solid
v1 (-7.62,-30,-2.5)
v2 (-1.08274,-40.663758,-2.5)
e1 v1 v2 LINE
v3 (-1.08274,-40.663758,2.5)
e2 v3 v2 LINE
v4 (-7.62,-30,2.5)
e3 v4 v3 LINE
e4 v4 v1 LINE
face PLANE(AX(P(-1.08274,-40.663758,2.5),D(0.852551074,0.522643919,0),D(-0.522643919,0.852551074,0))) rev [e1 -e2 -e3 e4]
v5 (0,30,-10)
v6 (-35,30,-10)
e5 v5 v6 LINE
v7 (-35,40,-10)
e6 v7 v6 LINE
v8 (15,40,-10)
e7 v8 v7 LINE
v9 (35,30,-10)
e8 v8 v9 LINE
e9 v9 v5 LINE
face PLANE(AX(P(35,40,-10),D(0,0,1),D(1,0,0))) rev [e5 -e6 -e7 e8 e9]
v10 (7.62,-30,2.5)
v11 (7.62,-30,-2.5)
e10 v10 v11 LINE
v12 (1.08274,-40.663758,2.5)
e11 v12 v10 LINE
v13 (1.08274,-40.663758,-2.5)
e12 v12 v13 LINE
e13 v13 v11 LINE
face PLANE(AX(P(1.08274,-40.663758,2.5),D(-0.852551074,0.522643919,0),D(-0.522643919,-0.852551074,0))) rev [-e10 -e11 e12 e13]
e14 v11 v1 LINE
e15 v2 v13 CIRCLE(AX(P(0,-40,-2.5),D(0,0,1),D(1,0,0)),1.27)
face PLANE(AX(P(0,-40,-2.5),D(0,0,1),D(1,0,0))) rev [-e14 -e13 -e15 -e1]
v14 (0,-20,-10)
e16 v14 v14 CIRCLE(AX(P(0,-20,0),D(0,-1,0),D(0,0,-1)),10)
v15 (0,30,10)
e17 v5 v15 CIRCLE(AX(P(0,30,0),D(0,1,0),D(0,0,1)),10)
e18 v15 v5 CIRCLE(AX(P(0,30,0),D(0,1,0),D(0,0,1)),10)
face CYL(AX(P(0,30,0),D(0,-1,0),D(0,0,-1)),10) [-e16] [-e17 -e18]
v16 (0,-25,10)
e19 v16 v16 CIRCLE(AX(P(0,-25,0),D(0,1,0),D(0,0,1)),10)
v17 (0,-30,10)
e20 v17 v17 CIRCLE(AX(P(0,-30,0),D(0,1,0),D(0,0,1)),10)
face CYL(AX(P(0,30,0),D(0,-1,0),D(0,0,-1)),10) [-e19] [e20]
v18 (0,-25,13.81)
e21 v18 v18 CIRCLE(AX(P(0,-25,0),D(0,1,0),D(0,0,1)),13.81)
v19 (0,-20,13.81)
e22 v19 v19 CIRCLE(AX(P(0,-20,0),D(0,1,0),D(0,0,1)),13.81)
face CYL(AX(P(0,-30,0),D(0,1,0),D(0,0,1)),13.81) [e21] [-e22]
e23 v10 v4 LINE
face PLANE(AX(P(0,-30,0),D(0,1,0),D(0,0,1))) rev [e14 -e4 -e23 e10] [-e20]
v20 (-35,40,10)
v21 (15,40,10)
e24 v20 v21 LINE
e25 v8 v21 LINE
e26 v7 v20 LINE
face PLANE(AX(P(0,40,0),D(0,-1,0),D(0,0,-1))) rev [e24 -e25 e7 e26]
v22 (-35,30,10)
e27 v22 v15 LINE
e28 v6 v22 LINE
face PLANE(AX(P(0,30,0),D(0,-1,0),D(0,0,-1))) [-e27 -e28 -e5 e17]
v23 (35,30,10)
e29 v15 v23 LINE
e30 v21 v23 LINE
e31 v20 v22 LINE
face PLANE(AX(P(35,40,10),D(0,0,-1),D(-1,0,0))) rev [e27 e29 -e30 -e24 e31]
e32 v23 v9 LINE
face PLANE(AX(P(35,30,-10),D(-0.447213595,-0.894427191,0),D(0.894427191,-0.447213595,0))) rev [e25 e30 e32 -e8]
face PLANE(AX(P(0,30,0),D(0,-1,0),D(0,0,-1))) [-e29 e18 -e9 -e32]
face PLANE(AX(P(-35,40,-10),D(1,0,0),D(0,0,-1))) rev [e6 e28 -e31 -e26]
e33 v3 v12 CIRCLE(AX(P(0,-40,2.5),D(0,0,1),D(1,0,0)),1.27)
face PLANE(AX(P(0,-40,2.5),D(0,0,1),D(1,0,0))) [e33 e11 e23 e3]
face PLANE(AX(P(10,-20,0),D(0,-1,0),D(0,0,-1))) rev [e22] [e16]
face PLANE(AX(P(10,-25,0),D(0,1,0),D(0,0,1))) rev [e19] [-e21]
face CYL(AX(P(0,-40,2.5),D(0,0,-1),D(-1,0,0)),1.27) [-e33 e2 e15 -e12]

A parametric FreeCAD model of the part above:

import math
import FreeCAD as App
import Part
import Sketcher
Q = App.Units.Quantity


def add_polygon(sketch, points):
    """Adds a closed chain of lines whose ends are joined by coincident constraints."""
    first, n = sketch.GeometryCount, len(points)
    for a, b in zip(points, points[1:] + points[:1]):
        sketch.addGeometry(Part.LineSegment(App.Vector(*a, 0), App.Vector(*b, 0)), False)
    for i in range(n):
        sketch.addConstraint(Sketcher.Constraint("Coincident", first + i, 2, first + (i + 1) % n, 1))

doc = App.newDocument("Part")
body = doc.addObject("PartDesign::Body", "Body")

sketch1 = doc.addObject("Sketcher::SketchObject", "Sketch")
body.addObject(sketch1)
sketch1.AttachmentSupport = (doc.XZ_Plane, [""])
sketch1.MapMode = "FlatFace"
sketch1.addGeometry(Part.Circle(App.Vector(0, 0, 0), App.Vector(0, 0, 1), 10), False)
sketch1.addConstraint([
    Sketcher.Constraint("Coincident", 0, 3, -1, 1),
    Sketcher.Constraint("Diameter", 0, Q("20 mm")),
])
pad1 = doc.addObject("PartDesign::Pad", "Pad")
body.addObject(pad1)
pad1.Profile = sketch1
pad1.Length = 60
pad1.Midplane = True

sketch2 = doc.addObject("Sketcher::SketchObject", "Sketch001")
body.addObject(sketch2)
sketch2.AttachmentSupport = (doc.XY_Plane, [""])
sketch2.MapMode = "FlatFace"
sketch2.addGeometry([
    Part.LineSegment(App.Vector(-7.6, -30, 0), App.Vector(-1.1, -40.7, 0)),
    Part.ArcOfCircle(Part.Circle(App.Vector(0, -40, 0), App.Vector(0, 0, 1), 1.3), math.radians(-148), math.radians(-32)),
    Part.LineSegment(App.Vector(1.1, -40.7, 0), App.Vector(7.6, -30, 0)),
    Part.LineSegment(App.Vector(7.6, -30, 0), App.Vector(-7.6, -30, 0)),
], False)
sketch2.addConstraint([
    Sketcher.Constraint("Tangent", 0, 2, 1, 1),
    Sketcher.Constraint("Tangent", 1, 2, 2, 1),
    Sketcher.Constraint("Coincident", 2, 2, 3, 1),
    Sketcher.Constraint("Coincident", 3, 2, 0, 1),
    Sketcher.Constraint("Horizontal", 3),
    Sketcher.Constraint("Symmetric", 0, 2, 1, 2, -2),
    Sketcher.Constraint("Radius", 1, Q("1.27 mm")),
    Sketcher.Constraint("DistanceY", 1, 3, -1, 1, Q("40 mm")),
    Sketcher.Constraint("DistanceY", 2, 2, -1, 1, Q("30 mm")),
    Sketcher.Constraint("DistanceX", 3, 2, 3, 1, Q("15.24 mm")),
])
pad2 = doc.addObject("PartDesign::Pad", "Pad001")
body.addObject(pad2)
pad2.Profile = sketch2
pad2.Length = 5
pad2.Midplane = True

sketch3 = doc.addObject("Sketcher::SketchObject", "Sketch002")
body.addObject(sketch3)
sketch3.AttachmentSupport = (doc.XY_Plane, [""])
sketch3.MapMode = "FlatFace"
add_polygon(sketch3, [(10, -20), (10, -25), (13.8, -25), (13.8, -20)])
sketch3.addConstraint([
    Sketcher.Constraint("Vertical", 0),
    Sketcher.Constraint("Horizontal", 1),
    Sketcher.Constraint("Vertical", 2),
    Sketcher.Constraint("Horizontal", 3),
    Sketcher.Constraint("DistanceY", 0, 2, 0, 1, Q("5 mm")),
    Sketcher.Constraint("DistanceX", -1, 1, 0, 2, Q("10 mm")),
    Sketcher.Constraint("DistanceY", 0, 2, -1, 1, Q("25 mm")),
    Sketcher.Constraint("DistanceX", 1, 1, 1, 2, Q("3.81 mm")),
])
revolution = doc.addObject("PartDesign::Revolution", "Revolution")
body.addObject(revolution)
revolution.Profile = sketch3
revolution.ReferenceAxis = (sketch3, ["V_Axis"])
revolution.Angle = 360

sketch4 = doc.addObject("Sketcher::SketchObject", "Sketch003")
body.addObject(sketch4)
sketch4.AttachmentSupport = (doc.XZ_Plane, [""])
sketch4.MapMode = "FlatFace"
sketch4.AttachmentOffset = App.Placement(App.Vector(0, 0, -30), App.Rotation())
add_polygon(sketch4, [(-35, -10), (-35, 10), (35, 10), (35, -10)])
sketch4.addConstraint([
    Sketcher.Constraint("Vertical", 0),
    Sketcher.Constraint("Horizontal", 1),
    Sketcher.Constraint("Vertical", 2),
    Sketcher.Constraint("Horizontal", 3),
    Sketcher.Constraint("Symmetric", 0, 2, 2, 2, -1, 1),
    Sketcher.Constraint("DistanceX", 1, 1, 1, 2, Q("70 mm")),
    Sketcher.Constraint("DistanceY", 0, 1, 0, 2, Q("20 mm")),
])
pad3 = doc.addObject("PartDesign::Pad", "Pad002")
body.addObject(pad3)
pad3.Profile = sketch4
pad3.Length = 10
pad3.Reversed = True

sketch5 = doc.addObject("Sketcher::SketchObject", "Sketch004")
body.addObject(sketch5)
sketch5.AttachmentSupport = (doc.XY_Plane, [""])
sketch5.MapMode = "FlatFace"
sketch5.AttachmentOffset = App.Placement(App.Vector(0, 0, 10), App.Rotation())
add_polygon(sketch5, [(15, 40), (35, 30), (35, 40)])
sketch5.addConstraint([
    Sketcher.Constraint("Vertical", 1),
    Sketcher.Constraint("Horizontal", 2),
    Sketcher.Constraint("DistanceX", 2, 2, 2, 1, Q("20 mm")),
    Sketcher.Constraint("DistanceY", 1, 1, 1, 2, Q("10 mm")),
    Sketcher.Constraint("DistanceX", -1, 1, 0, 2, Q("35 mm")),
    Sketcher.Constraint("DistanceY", -1, 1, 0, 2, Q("30 mm")),
])
pocket1 = doc.addObject("PartDesign::Pocket", "Pocket")
body.addObject(pocket1)
pocket1.Profile = sketch5
pocket1.Length = 20

doc.recompute()
